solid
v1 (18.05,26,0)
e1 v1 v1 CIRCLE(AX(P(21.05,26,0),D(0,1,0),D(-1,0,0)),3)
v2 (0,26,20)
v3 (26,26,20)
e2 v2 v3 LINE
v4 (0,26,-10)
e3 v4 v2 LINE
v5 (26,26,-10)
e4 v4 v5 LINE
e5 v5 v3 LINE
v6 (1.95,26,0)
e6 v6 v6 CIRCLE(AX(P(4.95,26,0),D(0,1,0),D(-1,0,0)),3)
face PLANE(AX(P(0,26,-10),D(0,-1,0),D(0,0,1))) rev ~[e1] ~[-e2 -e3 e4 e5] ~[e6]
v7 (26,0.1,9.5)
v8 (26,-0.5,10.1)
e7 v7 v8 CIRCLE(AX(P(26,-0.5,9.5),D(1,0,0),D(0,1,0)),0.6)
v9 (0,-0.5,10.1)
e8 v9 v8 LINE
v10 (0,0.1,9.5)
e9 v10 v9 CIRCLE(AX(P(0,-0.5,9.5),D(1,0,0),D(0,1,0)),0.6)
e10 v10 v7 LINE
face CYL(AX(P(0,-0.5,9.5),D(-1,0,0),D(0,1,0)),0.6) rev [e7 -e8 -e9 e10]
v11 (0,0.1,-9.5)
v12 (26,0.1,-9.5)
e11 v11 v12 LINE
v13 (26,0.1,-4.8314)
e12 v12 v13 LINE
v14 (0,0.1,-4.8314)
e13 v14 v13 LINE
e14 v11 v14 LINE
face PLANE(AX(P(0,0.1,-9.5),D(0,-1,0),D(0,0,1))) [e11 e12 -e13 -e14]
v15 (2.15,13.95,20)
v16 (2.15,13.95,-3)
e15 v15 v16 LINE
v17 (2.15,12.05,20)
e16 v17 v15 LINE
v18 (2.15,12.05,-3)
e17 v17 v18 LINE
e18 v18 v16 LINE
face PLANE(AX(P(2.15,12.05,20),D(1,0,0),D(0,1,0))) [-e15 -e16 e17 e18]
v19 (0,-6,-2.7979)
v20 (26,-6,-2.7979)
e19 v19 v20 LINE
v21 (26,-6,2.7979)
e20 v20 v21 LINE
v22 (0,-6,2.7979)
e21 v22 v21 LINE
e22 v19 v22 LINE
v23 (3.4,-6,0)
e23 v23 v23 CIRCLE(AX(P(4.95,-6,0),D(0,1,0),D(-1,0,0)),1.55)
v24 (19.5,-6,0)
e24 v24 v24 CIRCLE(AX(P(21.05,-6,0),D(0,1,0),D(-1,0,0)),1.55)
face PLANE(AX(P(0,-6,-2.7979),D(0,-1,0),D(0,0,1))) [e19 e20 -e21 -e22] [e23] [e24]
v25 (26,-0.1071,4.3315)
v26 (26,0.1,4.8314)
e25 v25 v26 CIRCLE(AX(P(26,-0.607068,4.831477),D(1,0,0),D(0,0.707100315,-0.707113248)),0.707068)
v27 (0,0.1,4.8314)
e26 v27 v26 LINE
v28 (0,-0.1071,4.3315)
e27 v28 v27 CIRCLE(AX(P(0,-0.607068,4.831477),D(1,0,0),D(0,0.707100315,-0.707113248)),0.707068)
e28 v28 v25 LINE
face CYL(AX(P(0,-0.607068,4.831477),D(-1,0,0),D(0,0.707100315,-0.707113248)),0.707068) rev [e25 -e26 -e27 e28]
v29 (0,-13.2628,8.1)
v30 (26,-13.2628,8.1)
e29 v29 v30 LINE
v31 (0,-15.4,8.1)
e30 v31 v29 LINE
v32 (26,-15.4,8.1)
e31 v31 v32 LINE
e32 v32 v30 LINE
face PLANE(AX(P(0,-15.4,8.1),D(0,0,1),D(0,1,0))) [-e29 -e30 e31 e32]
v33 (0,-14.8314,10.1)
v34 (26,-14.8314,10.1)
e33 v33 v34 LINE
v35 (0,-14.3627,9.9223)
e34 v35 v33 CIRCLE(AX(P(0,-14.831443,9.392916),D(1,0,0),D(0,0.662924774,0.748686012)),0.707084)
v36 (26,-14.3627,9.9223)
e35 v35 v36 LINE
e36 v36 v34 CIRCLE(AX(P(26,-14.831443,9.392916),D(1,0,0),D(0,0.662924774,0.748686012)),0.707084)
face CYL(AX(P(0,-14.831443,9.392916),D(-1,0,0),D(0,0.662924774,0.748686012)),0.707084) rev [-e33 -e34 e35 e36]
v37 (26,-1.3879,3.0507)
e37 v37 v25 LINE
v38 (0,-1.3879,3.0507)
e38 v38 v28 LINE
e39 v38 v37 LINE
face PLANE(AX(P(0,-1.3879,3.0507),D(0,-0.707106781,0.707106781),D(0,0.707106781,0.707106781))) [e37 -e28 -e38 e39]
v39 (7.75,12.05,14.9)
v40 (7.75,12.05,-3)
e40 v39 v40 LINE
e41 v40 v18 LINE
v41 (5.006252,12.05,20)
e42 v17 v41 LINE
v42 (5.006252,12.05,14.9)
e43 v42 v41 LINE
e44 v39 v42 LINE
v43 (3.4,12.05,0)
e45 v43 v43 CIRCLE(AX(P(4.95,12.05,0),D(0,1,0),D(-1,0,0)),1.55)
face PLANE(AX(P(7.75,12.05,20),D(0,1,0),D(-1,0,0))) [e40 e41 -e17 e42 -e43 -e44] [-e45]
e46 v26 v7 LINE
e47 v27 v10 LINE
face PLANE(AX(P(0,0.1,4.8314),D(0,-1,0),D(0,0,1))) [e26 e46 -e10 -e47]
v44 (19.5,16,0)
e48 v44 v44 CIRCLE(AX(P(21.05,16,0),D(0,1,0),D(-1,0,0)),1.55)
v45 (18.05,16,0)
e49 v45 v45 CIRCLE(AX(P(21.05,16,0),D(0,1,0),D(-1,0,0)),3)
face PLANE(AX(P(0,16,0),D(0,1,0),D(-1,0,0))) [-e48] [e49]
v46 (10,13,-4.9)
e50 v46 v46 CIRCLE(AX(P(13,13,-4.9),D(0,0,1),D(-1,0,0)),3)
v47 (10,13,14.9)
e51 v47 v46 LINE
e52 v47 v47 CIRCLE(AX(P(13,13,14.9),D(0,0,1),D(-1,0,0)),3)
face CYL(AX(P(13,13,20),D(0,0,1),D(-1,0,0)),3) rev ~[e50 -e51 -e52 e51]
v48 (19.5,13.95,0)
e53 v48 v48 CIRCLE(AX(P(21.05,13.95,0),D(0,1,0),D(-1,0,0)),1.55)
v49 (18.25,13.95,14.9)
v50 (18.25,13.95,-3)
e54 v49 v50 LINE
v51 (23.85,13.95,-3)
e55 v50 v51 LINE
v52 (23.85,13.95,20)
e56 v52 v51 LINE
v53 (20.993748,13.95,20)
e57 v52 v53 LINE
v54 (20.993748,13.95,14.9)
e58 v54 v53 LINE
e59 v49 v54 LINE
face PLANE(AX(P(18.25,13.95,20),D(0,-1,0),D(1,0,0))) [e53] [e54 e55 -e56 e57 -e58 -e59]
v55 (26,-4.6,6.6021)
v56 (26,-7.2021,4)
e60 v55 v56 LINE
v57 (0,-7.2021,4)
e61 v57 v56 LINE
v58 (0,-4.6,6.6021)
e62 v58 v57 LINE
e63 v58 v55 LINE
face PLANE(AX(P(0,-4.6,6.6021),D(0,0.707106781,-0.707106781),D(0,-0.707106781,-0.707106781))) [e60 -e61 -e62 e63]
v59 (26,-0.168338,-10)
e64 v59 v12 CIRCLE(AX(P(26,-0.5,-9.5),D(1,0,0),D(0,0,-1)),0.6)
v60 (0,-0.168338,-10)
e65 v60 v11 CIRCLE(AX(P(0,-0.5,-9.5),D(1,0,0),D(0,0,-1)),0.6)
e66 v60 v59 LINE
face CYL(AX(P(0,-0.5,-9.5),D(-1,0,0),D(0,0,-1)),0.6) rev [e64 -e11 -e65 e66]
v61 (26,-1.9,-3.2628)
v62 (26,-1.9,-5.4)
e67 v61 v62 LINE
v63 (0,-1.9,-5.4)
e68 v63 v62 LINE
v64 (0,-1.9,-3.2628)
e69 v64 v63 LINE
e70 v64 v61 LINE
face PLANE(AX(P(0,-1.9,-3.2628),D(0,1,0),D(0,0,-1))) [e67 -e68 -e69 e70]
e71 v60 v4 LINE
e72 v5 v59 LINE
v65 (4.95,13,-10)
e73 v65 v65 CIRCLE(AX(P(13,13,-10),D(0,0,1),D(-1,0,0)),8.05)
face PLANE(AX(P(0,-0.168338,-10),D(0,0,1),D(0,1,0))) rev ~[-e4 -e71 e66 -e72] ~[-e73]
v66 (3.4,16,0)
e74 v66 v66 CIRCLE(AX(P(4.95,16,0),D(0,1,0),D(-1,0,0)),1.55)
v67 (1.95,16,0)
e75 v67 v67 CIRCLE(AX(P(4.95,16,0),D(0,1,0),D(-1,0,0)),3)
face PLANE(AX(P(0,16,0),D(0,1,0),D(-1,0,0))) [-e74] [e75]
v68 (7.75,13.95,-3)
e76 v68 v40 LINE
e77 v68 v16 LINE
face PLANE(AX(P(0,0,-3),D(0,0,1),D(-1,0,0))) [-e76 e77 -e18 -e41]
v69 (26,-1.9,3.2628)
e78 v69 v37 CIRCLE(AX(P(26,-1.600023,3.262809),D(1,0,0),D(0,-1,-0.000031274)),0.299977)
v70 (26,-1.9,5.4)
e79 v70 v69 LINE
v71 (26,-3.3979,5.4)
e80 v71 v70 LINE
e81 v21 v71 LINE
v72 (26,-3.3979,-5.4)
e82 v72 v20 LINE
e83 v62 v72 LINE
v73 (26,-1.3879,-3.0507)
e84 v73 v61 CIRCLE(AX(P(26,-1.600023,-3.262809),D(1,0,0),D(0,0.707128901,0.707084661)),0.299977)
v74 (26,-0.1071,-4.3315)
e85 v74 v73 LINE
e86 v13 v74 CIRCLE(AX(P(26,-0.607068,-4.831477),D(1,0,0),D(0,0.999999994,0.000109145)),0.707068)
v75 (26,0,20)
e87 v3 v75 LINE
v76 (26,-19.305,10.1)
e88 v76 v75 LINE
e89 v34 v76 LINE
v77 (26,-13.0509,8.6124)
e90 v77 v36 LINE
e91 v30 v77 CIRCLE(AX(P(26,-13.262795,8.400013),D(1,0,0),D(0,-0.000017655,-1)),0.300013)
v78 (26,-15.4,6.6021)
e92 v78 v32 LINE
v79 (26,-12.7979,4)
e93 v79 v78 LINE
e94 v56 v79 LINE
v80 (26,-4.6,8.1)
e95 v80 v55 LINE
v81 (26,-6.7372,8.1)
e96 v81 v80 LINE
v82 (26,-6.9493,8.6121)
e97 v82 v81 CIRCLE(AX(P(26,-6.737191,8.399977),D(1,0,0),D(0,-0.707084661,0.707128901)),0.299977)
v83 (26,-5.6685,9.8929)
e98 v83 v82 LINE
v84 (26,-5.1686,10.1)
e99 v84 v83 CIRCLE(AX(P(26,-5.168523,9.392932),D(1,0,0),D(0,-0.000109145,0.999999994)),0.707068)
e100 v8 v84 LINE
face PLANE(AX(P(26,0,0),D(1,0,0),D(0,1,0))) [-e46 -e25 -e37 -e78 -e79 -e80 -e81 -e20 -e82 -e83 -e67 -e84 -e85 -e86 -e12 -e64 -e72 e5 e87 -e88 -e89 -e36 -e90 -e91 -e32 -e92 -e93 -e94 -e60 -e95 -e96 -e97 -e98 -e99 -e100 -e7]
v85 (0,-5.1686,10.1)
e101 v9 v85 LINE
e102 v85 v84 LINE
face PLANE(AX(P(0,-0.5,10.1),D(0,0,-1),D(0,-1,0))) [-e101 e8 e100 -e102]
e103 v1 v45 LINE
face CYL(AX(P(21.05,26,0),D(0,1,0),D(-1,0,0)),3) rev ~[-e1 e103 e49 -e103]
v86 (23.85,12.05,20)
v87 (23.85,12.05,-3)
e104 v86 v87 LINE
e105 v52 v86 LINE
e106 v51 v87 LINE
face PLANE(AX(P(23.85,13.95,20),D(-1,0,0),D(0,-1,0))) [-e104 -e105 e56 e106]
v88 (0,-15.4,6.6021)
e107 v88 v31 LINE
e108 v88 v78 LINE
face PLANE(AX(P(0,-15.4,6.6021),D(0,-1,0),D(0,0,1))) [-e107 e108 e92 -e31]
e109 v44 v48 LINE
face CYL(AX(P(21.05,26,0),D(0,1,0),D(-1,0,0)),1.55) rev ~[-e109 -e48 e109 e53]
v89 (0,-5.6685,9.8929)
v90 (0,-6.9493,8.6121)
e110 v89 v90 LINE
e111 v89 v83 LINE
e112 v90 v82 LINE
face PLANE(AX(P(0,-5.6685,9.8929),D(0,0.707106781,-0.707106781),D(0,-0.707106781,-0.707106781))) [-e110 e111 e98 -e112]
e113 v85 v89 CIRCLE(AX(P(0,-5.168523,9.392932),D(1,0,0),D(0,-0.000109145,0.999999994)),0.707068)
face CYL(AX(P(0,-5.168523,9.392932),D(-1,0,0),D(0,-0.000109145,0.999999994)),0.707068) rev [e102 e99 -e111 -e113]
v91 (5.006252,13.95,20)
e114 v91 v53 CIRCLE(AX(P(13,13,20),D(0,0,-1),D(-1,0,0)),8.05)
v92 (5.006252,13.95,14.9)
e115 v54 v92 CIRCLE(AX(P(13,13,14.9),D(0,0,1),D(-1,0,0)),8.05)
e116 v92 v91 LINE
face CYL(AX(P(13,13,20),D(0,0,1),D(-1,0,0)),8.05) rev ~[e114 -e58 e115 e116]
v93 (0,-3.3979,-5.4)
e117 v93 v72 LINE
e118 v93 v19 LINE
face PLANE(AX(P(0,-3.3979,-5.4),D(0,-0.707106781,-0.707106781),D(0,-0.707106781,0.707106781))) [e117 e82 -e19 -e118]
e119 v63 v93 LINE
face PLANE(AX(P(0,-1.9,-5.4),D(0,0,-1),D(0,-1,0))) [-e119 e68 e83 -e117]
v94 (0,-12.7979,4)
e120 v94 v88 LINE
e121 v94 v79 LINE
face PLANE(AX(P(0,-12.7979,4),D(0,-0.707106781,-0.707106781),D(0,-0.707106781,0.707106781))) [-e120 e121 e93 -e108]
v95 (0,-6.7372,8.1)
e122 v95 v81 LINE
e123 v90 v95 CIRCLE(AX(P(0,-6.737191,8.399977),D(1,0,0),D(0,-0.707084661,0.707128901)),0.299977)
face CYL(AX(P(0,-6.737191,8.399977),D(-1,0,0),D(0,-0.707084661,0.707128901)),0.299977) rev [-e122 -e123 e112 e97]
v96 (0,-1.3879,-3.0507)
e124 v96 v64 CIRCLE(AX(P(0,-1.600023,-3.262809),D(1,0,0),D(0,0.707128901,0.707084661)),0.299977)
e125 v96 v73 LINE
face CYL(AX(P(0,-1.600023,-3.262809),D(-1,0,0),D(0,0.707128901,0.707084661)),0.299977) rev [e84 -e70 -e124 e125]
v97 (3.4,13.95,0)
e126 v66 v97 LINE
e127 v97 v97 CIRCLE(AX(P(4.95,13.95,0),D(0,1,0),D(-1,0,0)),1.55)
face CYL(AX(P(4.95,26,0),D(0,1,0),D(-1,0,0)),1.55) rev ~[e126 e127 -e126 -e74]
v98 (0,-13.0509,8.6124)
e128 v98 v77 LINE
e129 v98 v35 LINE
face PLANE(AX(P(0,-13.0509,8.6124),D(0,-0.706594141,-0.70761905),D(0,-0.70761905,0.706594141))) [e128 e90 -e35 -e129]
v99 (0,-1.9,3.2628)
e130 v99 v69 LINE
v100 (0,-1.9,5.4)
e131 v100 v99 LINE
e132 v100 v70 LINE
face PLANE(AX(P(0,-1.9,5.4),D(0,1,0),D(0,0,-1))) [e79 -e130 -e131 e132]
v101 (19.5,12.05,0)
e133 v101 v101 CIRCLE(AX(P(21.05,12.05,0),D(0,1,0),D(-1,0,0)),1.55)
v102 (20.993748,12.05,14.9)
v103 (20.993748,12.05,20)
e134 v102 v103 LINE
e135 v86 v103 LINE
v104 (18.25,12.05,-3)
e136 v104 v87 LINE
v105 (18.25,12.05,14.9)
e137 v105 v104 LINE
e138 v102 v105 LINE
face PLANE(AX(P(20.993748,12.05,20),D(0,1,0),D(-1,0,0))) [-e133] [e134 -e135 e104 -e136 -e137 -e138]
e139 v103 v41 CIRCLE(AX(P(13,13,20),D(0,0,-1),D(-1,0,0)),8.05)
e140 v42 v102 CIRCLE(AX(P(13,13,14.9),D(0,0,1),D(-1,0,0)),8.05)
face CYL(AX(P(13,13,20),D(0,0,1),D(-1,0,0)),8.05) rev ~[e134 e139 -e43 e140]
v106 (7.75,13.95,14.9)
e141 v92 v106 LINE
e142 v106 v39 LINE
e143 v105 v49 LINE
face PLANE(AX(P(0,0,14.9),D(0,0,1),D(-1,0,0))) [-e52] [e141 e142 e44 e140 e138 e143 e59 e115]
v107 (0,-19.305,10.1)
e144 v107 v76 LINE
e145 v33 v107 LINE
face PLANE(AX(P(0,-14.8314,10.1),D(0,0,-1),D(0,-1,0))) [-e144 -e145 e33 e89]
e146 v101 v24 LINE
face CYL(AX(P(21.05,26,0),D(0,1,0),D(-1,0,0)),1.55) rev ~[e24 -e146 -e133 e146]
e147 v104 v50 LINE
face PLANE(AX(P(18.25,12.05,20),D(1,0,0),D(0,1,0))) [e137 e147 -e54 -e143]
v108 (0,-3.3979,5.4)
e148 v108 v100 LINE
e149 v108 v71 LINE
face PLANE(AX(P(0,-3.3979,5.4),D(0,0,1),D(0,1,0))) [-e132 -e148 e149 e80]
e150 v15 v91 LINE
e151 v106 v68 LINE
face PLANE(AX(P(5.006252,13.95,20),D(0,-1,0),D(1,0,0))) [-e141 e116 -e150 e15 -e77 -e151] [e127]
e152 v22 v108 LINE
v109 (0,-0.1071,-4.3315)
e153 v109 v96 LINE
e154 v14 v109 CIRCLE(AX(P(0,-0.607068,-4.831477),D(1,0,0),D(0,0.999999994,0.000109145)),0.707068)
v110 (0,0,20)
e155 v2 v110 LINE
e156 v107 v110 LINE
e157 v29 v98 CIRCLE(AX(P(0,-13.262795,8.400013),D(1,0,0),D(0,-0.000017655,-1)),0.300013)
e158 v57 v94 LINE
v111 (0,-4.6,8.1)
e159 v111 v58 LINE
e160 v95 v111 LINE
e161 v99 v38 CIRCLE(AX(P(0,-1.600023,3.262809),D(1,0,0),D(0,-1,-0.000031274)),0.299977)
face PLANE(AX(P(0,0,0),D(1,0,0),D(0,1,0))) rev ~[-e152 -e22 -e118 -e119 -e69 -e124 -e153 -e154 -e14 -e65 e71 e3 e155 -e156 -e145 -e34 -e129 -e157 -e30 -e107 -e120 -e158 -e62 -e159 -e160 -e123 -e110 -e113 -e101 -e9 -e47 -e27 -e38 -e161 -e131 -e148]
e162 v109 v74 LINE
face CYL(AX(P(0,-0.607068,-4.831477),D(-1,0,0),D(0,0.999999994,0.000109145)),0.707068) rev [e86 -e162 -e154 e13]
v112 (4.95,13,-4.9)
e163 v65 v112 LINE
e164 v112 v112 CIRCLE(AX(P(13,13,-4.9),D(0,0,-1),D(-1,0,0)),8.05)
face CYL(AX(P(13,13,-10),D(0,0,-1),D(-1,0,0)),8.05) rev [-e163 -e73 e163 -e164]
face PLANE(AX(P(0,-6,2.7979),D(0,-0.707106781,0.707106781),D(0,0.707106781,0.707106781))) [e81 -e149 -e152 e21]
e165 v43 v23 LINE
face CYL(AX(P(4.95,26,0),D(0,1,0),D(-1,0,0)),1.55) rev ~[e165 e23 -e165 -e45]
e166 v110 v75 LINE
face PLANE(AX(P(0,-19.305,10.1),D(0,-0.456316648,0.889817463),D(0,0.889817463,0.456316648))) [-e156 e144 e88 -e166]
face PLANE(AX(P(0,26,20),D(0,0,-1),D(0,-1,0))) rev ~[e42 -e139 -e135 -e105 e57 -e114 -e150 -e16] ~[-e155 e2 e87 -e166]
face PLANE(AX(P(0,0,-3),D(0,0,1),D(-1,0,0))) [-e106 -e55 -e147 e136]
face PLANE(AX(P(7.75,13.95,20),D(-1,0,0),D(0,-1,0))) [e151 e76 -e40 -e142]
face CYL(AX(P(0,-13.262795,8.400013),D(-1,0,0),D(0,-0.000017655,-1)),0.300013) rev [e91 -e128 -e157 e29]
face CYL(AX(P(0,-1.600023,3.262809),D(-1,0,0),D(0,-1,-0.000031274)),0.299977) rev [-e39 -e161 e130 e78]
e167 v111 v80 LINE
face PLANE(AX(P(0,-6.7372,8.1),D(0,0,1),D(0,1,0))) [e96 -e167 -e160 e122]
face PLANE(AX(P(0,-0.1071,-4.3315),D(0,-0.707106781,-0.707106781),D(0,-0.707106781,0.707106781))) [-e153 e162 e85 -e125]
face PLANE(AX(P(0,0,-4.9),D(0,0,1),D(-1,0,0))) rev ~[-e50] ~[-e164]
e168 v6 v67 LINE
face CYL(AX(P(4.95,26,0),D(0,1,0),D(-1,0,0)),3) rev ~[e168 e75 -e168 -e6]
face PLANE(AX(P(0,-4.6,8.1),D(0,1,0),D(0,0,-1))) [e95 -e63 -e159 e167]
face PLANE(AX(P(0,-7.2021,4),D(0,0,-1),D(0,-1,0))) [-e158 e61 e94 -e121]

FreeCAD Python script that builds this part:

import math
import FreeCAD as App
import Part
import Sketcher
Q = App.Units.Quantity

doc = App.newDocument("Part")
body = doc.addObject("PartDesign::Body", "Body")

# Sketch on YZ plane
sketch1 = body.newObject("Sketcher::SketchObject", "Sketch")
sketch1.AttachmentSupport = (doc.getObject("YZ_Plane"), [""])
sketch1.MapMode = "FlatFace"
sketch1.addGeometry([
    Part.ArcOfCircle(Part.Circle(App.Vector(-0.5, -9.5, 0), App.Vector(0, 0, 1), 0.6), math.radians(-56), math.radians(0)),  # 0
    Part.LineSegment(App.Vector(-0.17, -10, 0), App.Vector(26, -10, 0)),  # 1
    Part.LineSegment(App.Vector(26, -10, 0), App.Vector(26, 20, 0)),  # 2
    Part.LineSegment(App.Vector(26, 20, 0), App.Vector(0, 20, 0)),  # 3
    Part.LineSegment(App.Vector(0, 20, 0), App.Vector(-19.3, 10.1, 0)),  # 4
    Part.LineSegment(App.Vector(-19.3, 10.1, 0), App.Vector(-14.83, 10.1, 0)),  # 5
    Part.ArcOfCircle(Part.Circle(App.Vector(-14.83, 9.39, 0), App.Vector(0, 0, 1), 0.71), math.radians(48), math.radians(90)),  # 6
    Part.LineSegment(App.Vector(-14.36, 9.92, 0), App.Vector(-13.05, 8.61, 0)),  # 7
    Part.ArcOfCircle(Part.Circle(App.Vector(-13.26, 8.4, 0), App.Vector(0, 0, 1), 0.3), math.radians(-90), math.radians(45)),  # 8
    Part.LineSegment(App.Vector(-13.26, 8.1, 0), App.Vector(-15.4, 8.1, 0)),  # 9
    Part.LineSegment(App.Vector(-15.4, 8.1, 0), App.Vector(-15.4, 6.6, 0)),  # 10
    Part.LineSegment(App.Vector(-15.4, 6.6, 0), App.Vector(-12.8, 4, 0)),  # 11
    Part.LineSegment(App.Vector(-12.8, 4, 0), App.Vector(-7.2, 4, 0)),  # 12
    Part.LineSegment(App.Vector(-7.2, 4, 0), App.Vector(-4.6, 6.6, 0)),  # 13
    Part.LineSegment(App.Vector(-4.6, 6.6, 0), App.Vector(-4.6, 8.1, 0)),  # 14
    Part.LineSegment(App.Vector(-4.6, 8.1, 0), App.Vector(-6.74, 8.1, 0)),  # 15
    Part.ArcOfCircle(Part.Circle(App.Vector(-6.74, 8.4, 0), App.Vector(0, 0, 1), 0.3), math.radians(135), math.radians(270)),  # 16
    Part.LineSegment(App.Vector(-6.95, 8.61, 0), App.Vector(-5.67, 9.89, 0)),  # 17
    Part.ArcOfCircle(Part.Circle(App.Vector(-5.17, 9.39, 0), App.Vector(0, 0, 1), 0.71), math.radians(90), math.radians(135)),  # 18
    Part.LineSegment(App.Vector(-5.17, 10.1, 0), App.Vector(-0.5, 10.1, 0)),  # 19
    Part.ArcOfCircle(Part.Circle(App.Vector(-0.5, 9.5, 0), App.Vector(0, 0, 1), 0.6), math.radians(0), math.radians(90)),  # 20
    Part.LineSegment(App.Vector(0.1, 9.5, 0), App.Vector(0.1, 4.83, 0)),  # 21
    Part.ArcOfCircle(Part.Circle(App.Vector(-0.61, 4.83, 0), App.Vector(0, 0, 1), 0.71), math.radians(-45), math.radians(0)),  # 22
    Part.LineSegment(App.Vector(-0.11, 4.33, 0), App.Vector(-1.39, 3.05, 0)),  # 23
    Part.ArcOfCircle(Part.Circle(App.Vector(-1.6, 3.26, 0), App.Vector(0, 0, 1), 0.3), math.radians(180), math.radians(315)),  # 24
    Part.LineSegment(App.Vector(-1.9, 3.26, 0), App.Vector(-1.9, 5.4, 0)),  # 25
    Part.LineSegment(App.Vector(-1.9, 5.4, 0), App.Vector(-3.4, 5.4, 0)),  # 26
    Part.LineSegment(App.Vector(-3.4, 5.4, 0), App.Vector(-6, 2.8, 0)),  # 27
    Part.LineSegment(App.Vector(-6, 2.8, 0), App.Vector(-6, -2.8, 0)),  # 28
    Part.LineSegment(App.Vector(-6, -2.8, 0), App.Vector(-3.4, -5.4, 0)),  # 29
    Part.LineSegment(App.Vector(-3.4, -5.4, 0), App.Vector(-1.9, -5.4, 0)),  # 30
    Part.LineSegment(App.Vector(-1.9, -5.4, 0), App.Vector(-1.9, -3.26, 0)),  # 31
    Part.ArcOfCircle(Part.Circle(App.Vector(-1.6, -3.26, 0), App.Vector(0, 0, 1), 0.3), math.radians(45), math.radians(180)),  # 32
    Part.LineSegment(App.Vector(-1.39, -3.05, 0), App.Vector(-0.11, -4.33, 0)),  # 33
    Part.ArcOfCircle(Part.Circle(App.Vector(-0.61, -4.83, 0), App.Vector(0, 0, 1), 0.71), math.radians(0), math.radians(45)),  # 34
    Part.LineSegment(App.Vector(0.1, -4.83, 0), App.Vector(0.1, -9.5, 0)),  # 35
], False)
sketch1.addConstraint([
    Sketcher.Constraint("Coincident", 0, 1, 1, 1),
    Sketcher.Constraint("Coincident", 1, 2, 2, 1),
    Sketcher.Constraint("Coincident", 2, 2, 3, 1),
    Sketcher.Constraint("Coincident", 3, 2, 4, 1),
    Sketcher.Constraint("Coincident", 4, 2, 5, 1),
    Sketcher.Constraint("Tangent", 5, 2, 6, 2),
    Sketcher.Constraint("Coincident", 6, 1, 7, 1),
    Sketcher.Constraint("Tangent", 7, 2, 8, 2),
    Sketcher.Constraint("Tangent", 8, 1, 9, 1),
    Sketcher.Constraint("Coincident", 9, 2, 10, 1),
    Sketcher.Constraint("Coincident", 10, 2, 11, 1),
    Sketcher.Constraint("Coincident", 11, 2, 12, 1),
    Sketcher.Constraint("Coincident", 12, 2, 13, 1),
    Sketcher.Constraint("Coincident", 13, 2, 14, 1),
    Sketcher.Constraint("Coincident", 14, 2, 15, 1),
    Sketcher.Constraint("Tangent", 15, 2, 16, 2),
    Sketcher.Constraint("Tangent", 16, 1, 17, 1),
    Sketcher.Constraint("Tangent", 17, 2, 18, 2),
    Sketcher.Constraint("Tangent", 18, 1, 19, 1),
    Sketcher.Constraint("Tangent", 19, 2, 20, 2),
    Sketcher.Constraint("Tangent", 20, 1, 21, 1),
    Sketcher.Constraint("Tangent", 21, 2, 22, 2),
    Sketcher.Constraint("Tangent", 22, 1, 23, 1),
    Sketcher.Constraint("Tangent", 23, 2, 24, 2),
    Sketcher.Constraint("Tangent", 24, 1, 25, 1),
    Sketcher.Constraint("Coincident", 25, 2, 26, 1),
    Sketcher.Constraint("Coincident", 26, 2, 27, 1),
    Sketcher.Constraint("Coincident", 27, 2, 28, 1),
    Sketcher.Constraint("Coincident", 28, 2, 29, 1),
    Sketcher.Constraint("Coincident", 29, 2, 30, 1),
    Sketcher.Constraint("Coincident", 30, 2, 31, 1),
    Sketcher.Constraint("Tangent", 31, 2, 32, 2),
    Sketcher.Constraint("Tangent", 32, 1, 33, 1),
    Sketcher.Constraint("Tangent", 33, 2, 34, 2),
    Sketcher.Constraint("Tangent", 34, 1, 35, 1),
    Sketcher.Constraint("Tangent", 35, 2, 0, 2),
    Sketcher.Constraint("Horizontal", 1),
    Sketcher.Constraint("Vertical", 2),
    Sketcher.Constraint("Horizontal", 3),
    Sketcher.Constraint("Horizontal", 5),
    Sketcher.Constraint("Horizontal", 9),
    Sketcher.Constraint("Vertical", 10),
    Sketcher.Constraint("Horizontal", 12),
    Sketcher.Constraint("Vertical", 14),
    Sketcher.Constraint("Horizontal", 15),
    Sketcher.Constraint("Horizontal", 19),
    Sketcher.Constraint("Vertical", 21),
    Sketcher.Constraint("Vertical", 25),
    Sketcher.Constraint("Horizontal", 26),
    Sketcher.Constraint("Vertical", 28),
    Sketcher.Constraint("Horizontal", 30),
    Sketcher.Constraint("Vertical", 31),
    Sketcher.Constraint("Vertical", 35),
    Sketcher.Constraint("Equal", 8, 16),
    Sketcher.Constraint("Equal", 6, 18),
    Sketcher.Constraint("Equal", 0, 20),
    Sketcher.Constraint("Equal", 18, 22),
    Sketcher.Constraint("Equal", 16, 24),
    Sketcher.Constraint("Equal", 24, 32),
    Sketcher.Constraint("Equal", 22, 34),
    Sketcher.Constraint("Symmetric", 0, 3, 20, 3, -1),
    Sketcher.Constraint("Symmetric", 24, 3, 32, 3, -1),
    Sketcher.Constraint("Symmetric", 26, 2, 29, 2, -1),
    Sketcher.Constraint("PointOnObject", 3, 2, -2),
    Sketcher.Constraint("Perpendicular", 11, 13),
    Sketcher.Constraint("Parallel", 13, 17),
    Sketcher.Constraint("Parallel", 17, 23),
    Sketcher.Constraint("Parallel", 23, 27),
    Sketcher.Constraint("Perpendicular", 27, 29),
    Sketcher.Constraint("Parallel", 29, 33),
    Sketcher.Constraint("Horizontal", 8, 3, 16, 3),
    Sketcher.Constraint("Horizontal", 6, 3, 18, 3),
    Sketcher.Constraint("Horizontal", 10, 2, 13, 2),
    Sketcher.Constraint("Vertical", 23, 2, 32, 1),
    Sketcher.Constraint("Equal", 9, 15),
    Sketcher.Constraint("Equal", 30, 10),
    Sketcher.Constraint("Equal", 19, 21),
    Sketcher.Constraint("Equal", 15, 25),
    Sketcher.Constraint("Equal", 12, 28),
    Sketcher.Constraint("Equal", 17, 23),
    Sketcher.Constraint("Equal", 13, 27),
    Sketcher.Constraint("DistanceX", -1, 1, 20, 1, 0.1),
    Sketcher.Constraint("Radius", 0, 0.6),
    Sketcher.Constraint("Radius", 8, 0.3),
    Sketcher.Constraint("DistanceX", 3, 2, 3, 1, 26.0),
    Sketcher.Constraint("DistanceY", 2, 1, 2, 2, 30.0),
    Sketcher.Constraint("DistanceY", 0, 1, -1, 1, 10.0),
    Sketcher.Constraint("DistanceY", -1, 1, 11, 2, 4.0),
    Sketcher.Constraint("DistanceX", 27, 2, -1, 1, 6.0),
    Sketcher.Constraint("Radius", 6, 0.707),
    Sketcher.Constraint("DistanceY", 8, 1, 5, 2, 2.0),
    Sketcher.Constraint("DistanceX", 13, 2, 24, 3, 3.0),
    Sketcher.Constraint("Angle", 4, Q("-152.8503 deg")),
    Sketcher.Constraint("DistanceX", 6, 1, 8, 3, 1.1),
    Sketcher.Constraint("Distance", 11, 3.68),
    Sketcher.Constraint("DistanceX", 16, 3, 22, 3, 6.13),
    Sketcher.Constraint("DistanceY", 7, 2, 6, 1, 1.31),
])
pad1 = body.newObject("PartDesign::Pad", "Pad")
pad1.Profile = sketch1
pad1.Length = 26

# Sketch on XY plane
sketch2 = body.newObject("Sketcher::SketchObject", "Sketch001")
sketch2.AttachmentSupport = (doc.getObject("XY_Plane"), [""])
sketch2.MapMode = "FlatFace"
sketch2.AttachmentOffset = App.Placement(App.Vector(0, 0, 20), App.Rotation())
sketch2.addGeometry(Part.Circle(App.Vector(13, 13, 0), App.Vector(0, 0, 1), 8), False)
sketch2.addConstraint([
    Sketcher.Constraint("Diameter", 0, 16.1),
    Sketcher.Constraint("DistanceX", -1, 1, 0, 3, 13.0),
    Sketcher.Constraint("DistanceY", -1, 1, 0, 3, 13.0),
])
pocket1 = body.newObject("PartDesign::Pocket", "Pocket")
pocket1.Profile = sketch2
pocket1.Length = 5.1

# Sketch on XY plane
sketch3 = body.newObject("Sketcher::SketchObject", "Sketch002")
sketch3.AttachmentSupport = (doc.getObject("XY_Plane"), [""])
sketch3.MapMode = "FlatFace"
sketch3.AttachmentOffset = App.Placement(App.Vector(0, 0, -10), App.Rotation())
sketch3.addGeometry(Part.Circle(App.Vector(13, 13, 0), App.Vector(0, 0, 1), 8), False)
sketch3.addConstraint([
    Sketcher.Constraint("Diameter", 0, 16.1),
    Sketcher.Constraint("DistanceX", -1, 1, 0, 3, 13.0),
    Sketcher.Constraint("DistanceY", -1, 1, 0, 3, 13.0),
])
pocket2 = body.newObject("PartDesign::Pocket", "Pocket001")
pocket2.Profile = sketch3
pocket2.Length = 5.1
pocket2.Reversed = True

# Sketch on XY plane
sketch4 = body.newObject("Sketcher::SketchObject", "Sketch003")
sketch4.AttachmentSupport = (doc.getObject("XY_Plane"), [""])
sketch4.MapMode = "FlatFace"
sketch4.AttachmentOffset = App.Placement(App.Vector(0, 0, 20), App.Rotation())
sketch4.addGeometry(Part.Circle(App.Vector(13, 13, 0), App.Vector(0, 0, 1), 3), False)
sketch4.addConstraint([
    Sketcher.Constraint("Diameter", 0, 6.0),
    Sketcher.Constraint("DistanceX", -1, 1, 0, 3, 13.0),
    Sketcher.Constraint("DistanceY", -1, 1, 0, 3, 13.0),
])
pocket3 = body.newObject("PartDesign::Pocket", "Pocket002")
pocket3.Profile = sketch4
pocket3.Length = 30

# Sketch on XZ plane
sketch5 = body.newObject("Sketcher::SketchObject", "Sketch004")
sketch5.AttachmentSupport = (doc.getObject("XZ_Plane"), [""])
sketch5.MapMode = "FlatFace"
sketch5.AttachmentOffset = App.Placement(App.Vector(0, 0, -26), App.Rotation())
sketch5.addGeometry([
    Part.Circle(App.Vector(21.1, 0, 0), App.Vector(0, 0, 1), 1.6),
    Part.Circle(App.Vector(5, 0, 0), App.Vector(0, 0, 1), 1.6),
], False)
sketch5.addConstraint([
    Sketcher.Constraint("Equal", 0, 1),
    Sketcher.Constraint("PointOnObject", 0, 3, -1),
    Sketcher.Constraint("PointOnObject", 1, 3, -1),
    Sketcher.Constraint("Diameter", 0, 3.1),
    Sketcher.Constraint("DistanceX", 1, 3, 0, 3, 16.1),
    Sketcher.Constraint("DistanceX", -1, 1, 0, 3, 21.05),
])
pocket4 = body.newObject("PartDesign::Pocket", "Pocket003")
pocket4.Profile = sketch5
pocket4.Length = 33
pocket4.Reversed = True

# Sketch on XZ plane
sketch6 = body.newObject("Sketcher::SketchObject", "Sketch005")
sketch6.AttachmentSupport = (doc.getObject("XZ_Plane"), [""])
sketch6.MapMode = "FlatFace"
sketch6.AttachmentOffset = App.Placement(App.Vector(0, 0, -26), App.Rotation())
sketch6.addGeometry([
    Part.Circle(App.Vector(21.1, 0, 0), App.Vector(0, 0, 1), 3),
    Part.Circle(App.Vector(21.1, 0, 0), App.Vector(0, 0, 1), 1.6),
    Part.Circle(App.Vector(5, 0, 0), App.Vector(0, 0, 1), 3),
    Part.Circle(App.Vector(5, 0, 0), App.Vector(0, 0, 1), 1.6),
], False)
sketch6.addConstraint([
    Sketcher.Constraint("Coincident", 1, 3, 0, 3),
    Sketcher.Constraint("Coincident", 3, 3, 2, 3),
    Sketcher.Constraint("Equal", 0, 2),
    Sketcher.Constraint("Equal", 1, 3),
    Sketcher.Constraint("PointOnObject", 0, 3, -1),
    Sketcher.Constraint("PointOnObject", 2, 3, -1),
    Sketcher.Constraint("Diameter", 0, 6.0),
    Sketcher.Constraint("Diameter", 1, 3.1),
    Sketcher.Constraint("DistanceX", 2, 3, 0, 3, 16.1),
    Sketcher.Constraint("DistanceX", -1, 1, 0, 3, 21.05),
])
pocket5 = body.newObject("PartDesign::Pocket", "Pocket004")
pocket5.Profile = sketch6
pocket5.Length = 10
pocket5.Reversed = True

# Sketch on XY plane
sketch7 = body.newObject("Sketcher::SketchObject", "Sketch006")
sketch7.AttachmentSupport = (doc.getObject("XY_Plane"), [""])
sketch7.MapMode = "FlatFace"
sketch7.AttachmentOffset = App.Placement(App.Vector(0, 0, 20), App.Rotation())
sketch7.addGeometry([
    Part.LineSegment(App.Vector(7.8, 13.9, 0), App.Vector(2.1, 13.9, 0)),  # 0
    Part.LineSegment(App.Vector(2.1, 13.9, 0), App.Vector(2.1, 12.1, 0)),  # 1
    Part.LineSegment(App.Vector(2.1, 12.1, 0), App.Vector(7.8, 12.1, 0)),  # 2
    Part.LineSegment(App.Vector(7.8, 12.1, 0), App.Vector(7.8, 13.9, 0)),  # 3
    Part.LineSegment(App.Vector(18.2, 12.1, 0), App.Vector(23.9, 12.1, 0)),  # 4
    Part.LineSegment(App.Vector(23.9, 12.1, 0), App.Vector(23.9, 13.9, 0)),  # 5
    Part.LineSegment(App.Vector(23.9, 13.9, 0), App.Vector(18.2, 13.9, 0)),  # 6
    Part.LineSegment(App.Vector(18.2, 13.9, 0), App.Vector(18.2, 12.1, 0)),  # 7
], False)
sketch7.addConstraint([
    Sketcher.Constraint("Coincident", 0, 2, 1, 1),
    Sketcher.Constraint("Coincident", 1, 2, 2, 1),
    Sketcher.Constraint("Coincident", 2, 2, 3, 1),
    Sketcher.Constraint("Coincident", 3, 2, 0, 1),
    Sketcher.Constraint("Coincident", 4, 2, 5, 1),
    Sketcher.Constraint("Coincident", 5, 2, 6, 1),
    Sketcher.Constraint("Coincident", 6, 2, 7, 1),
    Sketcher.Constraint("Coincident", 7, 2, 4, 1),
    Sketcher.Constraint("Horizontal", 0),
    Sketcher.Constraint("Vertical", 1),
    Sketcher.Constraint("Horizontal", 2),
    Sketcher.Constraint("Vertical", 3),
    Sketcher.Constraint("Horizontal", 4),
    Sketcher.Constraint("Vertical", 5),
    Sketcher.Constraint("Horizontal", 6),
    Sketcher.Constraint("Vertical", 7),
    Sketcher.Constraint("Horizontal", 2, 2, 4, 2),
    Sketcher.Constraint("Horizontal", 3, 2, 5, 2),
    Sketcher.Constraint("Equal", 2, 4),
    Sketcher.Constraint("DistanceX", 0, 2, 0, 1, 5.6),
    Sketcher.Constraint("DistanceY", 1, 2, 1, 1, 1.9),
    Sketcher.Constraint("DistanceX", 2, 2, 4, 2, 16.1),
    Sketcher.Constraint("DistanceX", -1, 1, 0, 2, 2.15),
    Sketcher.Constraint("DistanceY", -1, 1, 0, 2, 13.95),
])
pocket6 = body.newObject("PartDesign::Pocket", "Pocket005")
pocket6.Profile = sketch7
pocket6.Length = 23

doc.recompute()
